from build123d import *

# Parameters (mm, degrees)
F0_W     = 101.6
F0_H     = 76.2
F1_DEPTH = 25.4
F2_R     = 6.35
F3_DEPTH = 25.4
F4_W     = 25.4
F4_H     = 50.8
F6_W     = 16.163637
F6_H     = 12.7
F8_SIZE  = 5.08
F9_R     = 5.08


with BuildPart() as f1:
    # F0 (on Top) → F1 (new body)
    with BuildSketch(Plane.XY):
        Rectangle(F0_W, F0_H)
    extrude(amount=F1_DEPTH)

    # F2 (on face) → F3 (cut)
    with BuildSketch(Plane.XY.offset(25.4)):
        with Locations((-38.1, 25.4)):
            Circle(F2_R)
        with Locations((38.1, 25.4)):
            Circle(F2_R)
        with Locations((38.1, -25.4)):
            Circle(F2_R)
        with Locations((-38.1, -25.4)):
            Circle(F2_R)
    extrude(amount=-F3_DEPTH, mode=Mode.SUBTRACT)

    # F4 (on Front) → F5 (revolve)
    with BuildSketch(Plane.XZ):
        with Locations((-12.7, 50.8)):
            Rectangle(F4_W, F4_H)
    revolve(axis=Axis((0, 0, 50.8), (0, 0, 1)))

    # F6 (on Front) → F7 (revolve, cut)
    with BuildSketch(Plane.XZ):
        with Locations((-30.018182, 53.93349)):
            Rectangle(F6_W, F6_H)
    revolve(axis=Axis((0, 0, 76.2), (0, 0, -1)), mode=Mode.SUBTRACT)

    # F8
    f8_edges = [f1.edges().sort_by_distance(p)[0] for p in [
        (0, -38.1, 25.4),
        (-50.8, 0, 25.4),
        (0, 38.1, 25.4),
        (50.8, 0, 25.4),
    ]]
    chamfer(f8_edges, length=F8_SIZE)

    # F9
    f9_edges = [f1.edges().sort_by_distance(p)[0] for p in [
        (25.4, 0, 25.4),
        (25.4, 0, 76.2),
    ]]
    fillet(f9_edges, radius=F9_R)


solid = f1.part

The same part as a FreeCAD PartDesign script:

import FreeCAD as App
import Part
import Sketcher
Q = App.Units.Quantity


def edges_at(feature, points):
    """Names of the edges that pass closest to the given points."""
    edges = feature.Shape.Edges
    near = lambda p: min(range(len(edges)), key=lambda i: edges[i].distToShape(Part.Vertex(*p))[0])
    return sorted({f"Edge{near(p) + 1}" for p in points})


def add_polygon(sketch, points):
    """Adds a closed chain of lines whose ends are joined by coincident constraints."""
    first, n = sketch.GeometryCount, len(points)
    for a, b in zip(points, points[1:] + points[:1]):
        sketch.addGeometry(Part.LineSegment(App.Vector(*a, 0), App.Vector(*b, 0)), False)
    for i in range(n):
        sketch.addConstraint(Sketcher.Constraint("Coincident", first + i, 2, first + (i + 1) % n, 1))

doc = App.newDocument("Part")
params = doc.addObject("Spreadsheet::Sheet", "Params")
for row, (alias, value) in enumerate([
    ("sketch1_width", "4 in"),
    ("sketch1_height", "3 in"),
    ("pad1_length", "1 in"),
    ("sketch2_diameter", "0.5 in"),
    ("pocket1_length", "1 in"),
    ("sketch3_width", "1 in"),
    ("sketch3_height", "2 in"),
    ("revolution_angle", "360 deg"),
    ("sketch4_height", "0.5 in"),
    ("groove_angle", "360 deg"),
    ("chamfer_size", "0.2 in"),
    ("fillet_radius", "0.2 in"),
], start=1):
    params.set(f"A{row}", alias)
    params.set(f"B{row}", "=" + value)
    params.setAlias(f"B{row}", alias)

body = doc.addObject("PartDesign::Body", "Body")

# Sketch on XY plane
sketch1 = body.newObject("Sketcher::SketchObject", "Sketch")
sketch1.AttachmentSupport = (doc.getObject("XY_Plane"), [""])
sketch1.MapMode = "FlatFace"
add_polygon(sketch1, [(-51, 38), (-51, -38), (51, -38), (51, 38)])  # lines 0-3
sketch1.addConstraint(Sketcher.Constraint("Vertical", 0))
sketch1.addConstraint(Sketcher.Constraint("Horizontal", 1))
sketch1.addConstraint(Sketcher.Constraint("Vertical", 2))
sketch1.addConstraint(Sketcher.Constraint("Horizontal", 3))
sketch1.addConstraint(Sketcher.Constraint("Symmetric", 0, 2, 2, 2, -1, 1))
sketch1.addConstraint(Sketcher.Constraint("DistanceX", 1, 1, 1, 2, Q("4 in")))
sketch1.addConstraint(Sketcher.Constraint("DistanceY", 0, 2, 0, 1, Q("3 in")))
sketch1.setExpression("Constraints[9]", "Params.sketch1_width")
sketch1.setExpression("Constraints[10]", "Params.sketch1_height")
pad1 = body.newObject("PartDesign::Pad", "Pad")
pad1.Profile = sketch1
pad1.setExpression("Length", "Params.pad1_length")

# Sketch on XY plane
sketch2 = body.newObject("Sketcher::SketchObject", "Sketch001")
sketch2.AttachmentSupport = (doc.getObject("XY_Plane"), [""])
sketch2.MapMode = "FlatFace"
sketch2.AttachmentOffset = App.Placement(App.Vector(0, 0, 1 * 25.4), App.Rotation())
sketch2.addGeometry(Part.Circle(App.Vector(-38, 25, 0), App.Vector(0, 0, 1), 6), False)
sketch2.addGeometry(Part.Circle(App.Vector(38, 25, 0), App.Vector(0, 0, 1), 6), False)
sketch2.addGeometry(Part.Circle(App.Vector(38, -25, 0), App.Vector(0, 0, 1), 6), False)
sketch2.addGeometry(Part.Circle(App.Vector(-38, -25, 0), App.Vector(0, 0, 1), 6), False)
sketch2.addConstraint(Sketcher.Constraint("Equal", 0, 1))
sketch2.addConstraint(Sketcher.Constraint("Equal", 1, 2))
sketch2.addConstraint(Sketcher.Constraint("Equal", 2, 3))
sketch2.addConstraint(Sketcher.Constraint("Symmetric", 0, 3, 2, 3, -1, 1))
sketch2.addConstraint(Sketcher.Constraint("Symmetric", 1, 3, 3, 3, -1, 1))
sketch2.addConstraint(Sketcher.Constraint("Symmetric", 0, 3, 1, 3, -2))
sketch2.addConstraint(Sketcher.Constraint("Diameter", 0, Q("0.5 in")))
sketch2.addConstraint(Sketcher.Constraint("DistanceY", -1, 1, 0, 3, Q("1 in")))
sketch2.addConstraint(Sketcher.Constraint("DistanceX", 0, 3, 1, 3, Q("3 in")))
sketch2.setExpression("Constraints[6]", "Params.sketch2_diameter")
pocket1 = body.newObject("PartDesign::Pocket", "Pocket")
pocket1.Profile = sketch2
pocket1.setExpression("Length", "Params.pocket1_length")

# Sketch on XZ plane
sketch3 = body.newObject("Sketcher::SketchObject", "Sketch002")
sketch3.AttachmentSupport = (doc.getObject("XZ_Plane"), [""])
sketch3.MapMode = "FlatFace"
add_polygon(sketch3, [(-25, 76), (-25, 25), (0, 25), (0, 76)])  # lines 0-3
sketch3.addConstraint(Sketcher.Constraint("Vertical", 0))
sketch3.addConstraint(Sketcher.Constraint("Horizontal", 1))
sketch3.addConstraint(Sketcher.Constraint("Vertical", 2))
sketch3.addConstraint(Sketcher.Constraint("Horizontal", 3))
sketch3.addConstraint(Sketcher.Constraint("PointOnObject", 1, 2, -2))
sketch3.addConstraint(Sketcher.Constraint("DistanceX", 1, 1, 1, 2, Q("1 in")))
sketch3.addConstraint(Sketcher.Constraint("DistanceY", 0, 2, 0, 1, Q("2 in")))
sketch3.addConstraint(Sketcher.Constraint("DistanceY", -1, 1, 0, 2, Q("1 in")))
sketch3.setExpression("Constraints[9]", "Params.sketch3_width")
sketch3.setExpression("Constraints[10]", "Params.sketch3_height")
revolution = body.newObject("PartDesign::Revolution", "Revolution")
revolution.Profile = sketch3
revolution.ReferenceAxis = (sketch3, ["V_Axis"])
revolution.setExpression("Angle", "Params.revolution_angle")

# Sketch on XZ plane
sketch4 = body.newObject("Sketcher::SketchObject", "Sketch003")
sketch4.AttachmentSupport = (doc.getObject("XZ_Plane"), [""])
sketch4.MapMode = "FlatFace"
add_polygon(sketch4, [(-38, 60), (-38, 48), (-22, 48), (-22, 60)])  # lines 0-3
sketch4.addConstraint(Sketcher.Constraint("Vertical", 0))
sketch4.addConstraint(Sketcher.Constraint("Horizontal", 1))
sketch4.addConstraint(Sketcher.Constraint("Vertical", 2))
sketch4.addConstraint(Sketcher.Constraint("Horizontal", 3))
sketch4.addConstraint(Sketcher.Constraint("DistanceY", 0, 2, 0, 1, Q("0.5 in")))
sketch4.addConstraint(Sketcher.Constraint("DistanceX", 0, 2, -1, 1, Q("1.5 in")))
sketch4.addConstraint(Sketcher.Constraint("DistanceX", 1, 1, 1, 2, 16.163637))
sketch4.addConstraint(Sketcher.Constraint("DistanceY", -1, 1, 0, 2, 47.58349))
sketch4.setExpression("Constraints[8]", "Params.sketch4_height")
groove = body.newObject("PartDesign::Groove", "Groove")
groove.Profile = sketch4
groove.ReferenceAxis = (sketch4, ["V_Axis"])
groove.setExpression("Angle", "Params.groove_angle")
doc.recompute()

chamfer = body.newObject("PartDesign::Chamfer", "Chamfer")
chamfer.Base = (groove, edges_at(groove, [
    (0, -38.1, 25.4),
    (-50.8, 0, 25.4),
    (0, 38.1, 25.4),
    (50.8, 0, 25.4),
]))
chamfer.setExpression("Size", "Params.chamfer_size")
doc.recompute()

fillet = body.newObject("PartDesign::Fillet", "Fillet")
fillet.Base = (chamfer, edges_at(chamfer, [(25.4, 0, 25.4), (25.4, 0, 76.2)]))
fillet.setExpression("Radius", "Params.fillet_radius")

doc.recompute()
